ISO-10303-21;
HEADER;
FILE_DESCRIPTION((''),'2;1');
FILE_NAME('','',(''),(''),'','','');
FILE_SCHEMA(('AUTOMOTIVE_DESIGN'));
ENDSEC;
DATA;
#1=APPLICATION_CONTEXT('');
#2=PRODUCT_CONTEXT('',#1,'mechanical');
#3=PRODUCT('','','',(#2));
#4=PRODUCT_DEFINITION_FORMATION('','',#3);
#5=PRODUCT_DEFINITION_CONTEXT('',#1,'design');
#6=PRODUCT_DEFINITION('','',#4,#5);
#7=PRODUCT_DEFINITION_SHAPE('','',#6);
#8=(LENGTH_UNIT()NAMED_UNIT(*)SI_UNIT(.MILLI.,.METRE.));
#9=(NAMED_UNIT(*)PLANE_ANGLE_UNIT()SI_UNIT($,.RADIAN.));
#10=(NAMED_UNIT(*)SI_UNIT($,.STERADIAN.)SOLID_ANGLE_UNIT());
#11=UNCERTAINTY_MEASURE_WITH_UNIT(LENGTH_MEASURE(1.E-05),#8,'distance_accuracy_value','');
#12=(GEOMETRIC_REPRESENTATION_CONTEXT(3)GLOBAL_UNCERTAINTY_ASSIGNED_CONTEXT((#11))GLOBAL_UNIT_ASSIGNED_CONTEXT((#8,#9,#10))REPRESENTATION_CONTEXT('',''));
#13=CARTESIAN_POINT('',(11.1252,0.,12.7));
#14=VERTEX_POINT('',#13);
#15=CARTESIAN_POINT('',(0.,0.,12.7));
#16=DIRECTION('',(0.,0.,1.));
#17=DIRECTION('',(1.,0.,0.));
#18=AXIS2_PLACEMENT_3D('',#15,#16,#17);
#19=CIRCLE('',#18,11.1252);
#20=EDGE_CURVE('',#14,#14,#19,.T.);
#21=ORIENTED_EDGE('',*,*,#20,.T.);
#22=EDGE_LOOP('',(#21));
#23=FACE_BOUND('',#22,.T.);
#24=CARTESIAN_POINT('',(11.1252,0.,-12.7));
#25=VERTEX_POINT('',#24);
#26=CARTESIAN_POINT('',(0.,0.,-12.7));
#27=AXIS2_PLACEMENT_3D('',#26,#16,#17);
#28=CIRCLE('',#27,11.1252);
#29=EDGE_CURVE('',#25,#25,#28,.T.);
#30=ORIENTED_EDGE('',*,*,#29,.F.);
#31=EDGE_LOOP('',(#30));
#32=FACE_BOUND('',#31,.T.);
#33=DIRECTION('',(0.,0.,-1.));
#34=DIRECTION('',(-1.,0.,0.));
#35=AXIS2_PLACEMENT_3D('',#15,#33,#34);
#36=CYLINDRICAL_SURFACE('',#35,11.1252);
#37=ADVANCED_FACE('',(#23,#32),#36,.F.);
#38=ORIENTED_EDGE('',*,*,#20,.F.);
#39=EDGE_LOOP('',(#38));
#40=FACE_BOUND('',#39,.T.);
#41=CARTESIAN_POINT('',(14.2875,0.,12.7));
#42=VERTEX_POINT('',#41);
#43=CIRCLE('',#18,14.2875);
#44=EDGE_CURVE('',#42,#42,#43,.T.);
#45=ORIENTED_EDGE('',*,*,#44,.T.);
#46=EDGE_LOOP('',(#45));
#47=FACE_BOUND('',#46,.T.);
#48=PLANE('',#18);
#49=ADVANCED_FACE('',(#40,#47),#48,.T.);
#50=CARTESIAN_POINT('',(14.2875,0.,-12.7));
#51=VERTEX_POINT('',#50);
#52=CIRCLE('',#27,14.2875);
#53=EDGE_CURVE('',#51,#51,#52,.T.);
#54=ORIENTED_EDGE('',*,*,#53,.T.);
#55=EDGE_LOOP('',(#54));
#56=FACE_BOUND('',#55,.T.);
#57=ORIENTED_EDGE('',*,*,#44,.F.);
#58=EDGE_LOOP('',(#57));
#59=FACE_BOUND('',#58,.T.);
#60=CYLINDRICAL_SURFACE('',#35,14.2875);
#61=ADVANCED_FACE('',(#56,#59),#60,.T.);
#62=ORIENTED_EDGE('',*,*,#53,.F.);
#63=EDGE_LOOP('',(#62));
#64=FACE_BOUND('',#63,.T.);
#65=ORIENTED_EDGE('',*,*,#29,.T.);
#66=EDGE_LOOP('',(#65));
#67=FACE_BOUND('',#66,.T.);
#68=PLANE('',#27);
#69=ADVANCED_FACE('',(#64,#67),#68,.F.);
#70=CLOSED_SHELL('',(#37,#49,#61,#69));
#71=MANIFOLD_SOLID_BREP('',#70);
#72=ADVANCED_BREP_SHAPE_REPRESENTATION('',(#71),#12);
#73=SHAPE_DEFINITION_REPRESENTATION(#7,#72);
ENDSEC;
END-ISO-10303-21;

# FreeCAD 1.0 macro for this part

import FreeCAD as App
import Part
import Sketcher
Q = App.Units.Quantity

doc = App.newDocument("Part")
body = doc.addObject("PartDesign::Body", "Body")

# Sketch on XY plane
sketch1 = body.newObject("Sketcher::SketchObject", "Sketch")
sketch1.AttachmentSupport = (doc.getObject("XY_Plane"), [""])
sketch1.MapMode = "FlatFace"
sketch1.addGeometry([
    Part.Circle(App.Vector(0, 0, 0), App.Vector(0, 0, 1), 14),
    Part.Circle(App.Vector(0, 0, 0), App.Vector(0, 0, 1), 11),
], False)
sketch1.addConstraint([
    Sketcher.Constraint("Coincident", 0, 3, -1, 1),
    Sketcher.Constraint("Coincident", 1, 3, -1, 1),
    Sketcher.Constraint("Diameter", 0, Q("1.125 in")),
    Sketcher.Constraint("Diameter", 1, Q("0.876 in")),
])
pad1 = body.newObject("PartDesign::Pad", "Pad")
pad1.Profile = sketch1
pad1.Length = Q("1 in")
pad1.Midplane = True

doc.recompute()
